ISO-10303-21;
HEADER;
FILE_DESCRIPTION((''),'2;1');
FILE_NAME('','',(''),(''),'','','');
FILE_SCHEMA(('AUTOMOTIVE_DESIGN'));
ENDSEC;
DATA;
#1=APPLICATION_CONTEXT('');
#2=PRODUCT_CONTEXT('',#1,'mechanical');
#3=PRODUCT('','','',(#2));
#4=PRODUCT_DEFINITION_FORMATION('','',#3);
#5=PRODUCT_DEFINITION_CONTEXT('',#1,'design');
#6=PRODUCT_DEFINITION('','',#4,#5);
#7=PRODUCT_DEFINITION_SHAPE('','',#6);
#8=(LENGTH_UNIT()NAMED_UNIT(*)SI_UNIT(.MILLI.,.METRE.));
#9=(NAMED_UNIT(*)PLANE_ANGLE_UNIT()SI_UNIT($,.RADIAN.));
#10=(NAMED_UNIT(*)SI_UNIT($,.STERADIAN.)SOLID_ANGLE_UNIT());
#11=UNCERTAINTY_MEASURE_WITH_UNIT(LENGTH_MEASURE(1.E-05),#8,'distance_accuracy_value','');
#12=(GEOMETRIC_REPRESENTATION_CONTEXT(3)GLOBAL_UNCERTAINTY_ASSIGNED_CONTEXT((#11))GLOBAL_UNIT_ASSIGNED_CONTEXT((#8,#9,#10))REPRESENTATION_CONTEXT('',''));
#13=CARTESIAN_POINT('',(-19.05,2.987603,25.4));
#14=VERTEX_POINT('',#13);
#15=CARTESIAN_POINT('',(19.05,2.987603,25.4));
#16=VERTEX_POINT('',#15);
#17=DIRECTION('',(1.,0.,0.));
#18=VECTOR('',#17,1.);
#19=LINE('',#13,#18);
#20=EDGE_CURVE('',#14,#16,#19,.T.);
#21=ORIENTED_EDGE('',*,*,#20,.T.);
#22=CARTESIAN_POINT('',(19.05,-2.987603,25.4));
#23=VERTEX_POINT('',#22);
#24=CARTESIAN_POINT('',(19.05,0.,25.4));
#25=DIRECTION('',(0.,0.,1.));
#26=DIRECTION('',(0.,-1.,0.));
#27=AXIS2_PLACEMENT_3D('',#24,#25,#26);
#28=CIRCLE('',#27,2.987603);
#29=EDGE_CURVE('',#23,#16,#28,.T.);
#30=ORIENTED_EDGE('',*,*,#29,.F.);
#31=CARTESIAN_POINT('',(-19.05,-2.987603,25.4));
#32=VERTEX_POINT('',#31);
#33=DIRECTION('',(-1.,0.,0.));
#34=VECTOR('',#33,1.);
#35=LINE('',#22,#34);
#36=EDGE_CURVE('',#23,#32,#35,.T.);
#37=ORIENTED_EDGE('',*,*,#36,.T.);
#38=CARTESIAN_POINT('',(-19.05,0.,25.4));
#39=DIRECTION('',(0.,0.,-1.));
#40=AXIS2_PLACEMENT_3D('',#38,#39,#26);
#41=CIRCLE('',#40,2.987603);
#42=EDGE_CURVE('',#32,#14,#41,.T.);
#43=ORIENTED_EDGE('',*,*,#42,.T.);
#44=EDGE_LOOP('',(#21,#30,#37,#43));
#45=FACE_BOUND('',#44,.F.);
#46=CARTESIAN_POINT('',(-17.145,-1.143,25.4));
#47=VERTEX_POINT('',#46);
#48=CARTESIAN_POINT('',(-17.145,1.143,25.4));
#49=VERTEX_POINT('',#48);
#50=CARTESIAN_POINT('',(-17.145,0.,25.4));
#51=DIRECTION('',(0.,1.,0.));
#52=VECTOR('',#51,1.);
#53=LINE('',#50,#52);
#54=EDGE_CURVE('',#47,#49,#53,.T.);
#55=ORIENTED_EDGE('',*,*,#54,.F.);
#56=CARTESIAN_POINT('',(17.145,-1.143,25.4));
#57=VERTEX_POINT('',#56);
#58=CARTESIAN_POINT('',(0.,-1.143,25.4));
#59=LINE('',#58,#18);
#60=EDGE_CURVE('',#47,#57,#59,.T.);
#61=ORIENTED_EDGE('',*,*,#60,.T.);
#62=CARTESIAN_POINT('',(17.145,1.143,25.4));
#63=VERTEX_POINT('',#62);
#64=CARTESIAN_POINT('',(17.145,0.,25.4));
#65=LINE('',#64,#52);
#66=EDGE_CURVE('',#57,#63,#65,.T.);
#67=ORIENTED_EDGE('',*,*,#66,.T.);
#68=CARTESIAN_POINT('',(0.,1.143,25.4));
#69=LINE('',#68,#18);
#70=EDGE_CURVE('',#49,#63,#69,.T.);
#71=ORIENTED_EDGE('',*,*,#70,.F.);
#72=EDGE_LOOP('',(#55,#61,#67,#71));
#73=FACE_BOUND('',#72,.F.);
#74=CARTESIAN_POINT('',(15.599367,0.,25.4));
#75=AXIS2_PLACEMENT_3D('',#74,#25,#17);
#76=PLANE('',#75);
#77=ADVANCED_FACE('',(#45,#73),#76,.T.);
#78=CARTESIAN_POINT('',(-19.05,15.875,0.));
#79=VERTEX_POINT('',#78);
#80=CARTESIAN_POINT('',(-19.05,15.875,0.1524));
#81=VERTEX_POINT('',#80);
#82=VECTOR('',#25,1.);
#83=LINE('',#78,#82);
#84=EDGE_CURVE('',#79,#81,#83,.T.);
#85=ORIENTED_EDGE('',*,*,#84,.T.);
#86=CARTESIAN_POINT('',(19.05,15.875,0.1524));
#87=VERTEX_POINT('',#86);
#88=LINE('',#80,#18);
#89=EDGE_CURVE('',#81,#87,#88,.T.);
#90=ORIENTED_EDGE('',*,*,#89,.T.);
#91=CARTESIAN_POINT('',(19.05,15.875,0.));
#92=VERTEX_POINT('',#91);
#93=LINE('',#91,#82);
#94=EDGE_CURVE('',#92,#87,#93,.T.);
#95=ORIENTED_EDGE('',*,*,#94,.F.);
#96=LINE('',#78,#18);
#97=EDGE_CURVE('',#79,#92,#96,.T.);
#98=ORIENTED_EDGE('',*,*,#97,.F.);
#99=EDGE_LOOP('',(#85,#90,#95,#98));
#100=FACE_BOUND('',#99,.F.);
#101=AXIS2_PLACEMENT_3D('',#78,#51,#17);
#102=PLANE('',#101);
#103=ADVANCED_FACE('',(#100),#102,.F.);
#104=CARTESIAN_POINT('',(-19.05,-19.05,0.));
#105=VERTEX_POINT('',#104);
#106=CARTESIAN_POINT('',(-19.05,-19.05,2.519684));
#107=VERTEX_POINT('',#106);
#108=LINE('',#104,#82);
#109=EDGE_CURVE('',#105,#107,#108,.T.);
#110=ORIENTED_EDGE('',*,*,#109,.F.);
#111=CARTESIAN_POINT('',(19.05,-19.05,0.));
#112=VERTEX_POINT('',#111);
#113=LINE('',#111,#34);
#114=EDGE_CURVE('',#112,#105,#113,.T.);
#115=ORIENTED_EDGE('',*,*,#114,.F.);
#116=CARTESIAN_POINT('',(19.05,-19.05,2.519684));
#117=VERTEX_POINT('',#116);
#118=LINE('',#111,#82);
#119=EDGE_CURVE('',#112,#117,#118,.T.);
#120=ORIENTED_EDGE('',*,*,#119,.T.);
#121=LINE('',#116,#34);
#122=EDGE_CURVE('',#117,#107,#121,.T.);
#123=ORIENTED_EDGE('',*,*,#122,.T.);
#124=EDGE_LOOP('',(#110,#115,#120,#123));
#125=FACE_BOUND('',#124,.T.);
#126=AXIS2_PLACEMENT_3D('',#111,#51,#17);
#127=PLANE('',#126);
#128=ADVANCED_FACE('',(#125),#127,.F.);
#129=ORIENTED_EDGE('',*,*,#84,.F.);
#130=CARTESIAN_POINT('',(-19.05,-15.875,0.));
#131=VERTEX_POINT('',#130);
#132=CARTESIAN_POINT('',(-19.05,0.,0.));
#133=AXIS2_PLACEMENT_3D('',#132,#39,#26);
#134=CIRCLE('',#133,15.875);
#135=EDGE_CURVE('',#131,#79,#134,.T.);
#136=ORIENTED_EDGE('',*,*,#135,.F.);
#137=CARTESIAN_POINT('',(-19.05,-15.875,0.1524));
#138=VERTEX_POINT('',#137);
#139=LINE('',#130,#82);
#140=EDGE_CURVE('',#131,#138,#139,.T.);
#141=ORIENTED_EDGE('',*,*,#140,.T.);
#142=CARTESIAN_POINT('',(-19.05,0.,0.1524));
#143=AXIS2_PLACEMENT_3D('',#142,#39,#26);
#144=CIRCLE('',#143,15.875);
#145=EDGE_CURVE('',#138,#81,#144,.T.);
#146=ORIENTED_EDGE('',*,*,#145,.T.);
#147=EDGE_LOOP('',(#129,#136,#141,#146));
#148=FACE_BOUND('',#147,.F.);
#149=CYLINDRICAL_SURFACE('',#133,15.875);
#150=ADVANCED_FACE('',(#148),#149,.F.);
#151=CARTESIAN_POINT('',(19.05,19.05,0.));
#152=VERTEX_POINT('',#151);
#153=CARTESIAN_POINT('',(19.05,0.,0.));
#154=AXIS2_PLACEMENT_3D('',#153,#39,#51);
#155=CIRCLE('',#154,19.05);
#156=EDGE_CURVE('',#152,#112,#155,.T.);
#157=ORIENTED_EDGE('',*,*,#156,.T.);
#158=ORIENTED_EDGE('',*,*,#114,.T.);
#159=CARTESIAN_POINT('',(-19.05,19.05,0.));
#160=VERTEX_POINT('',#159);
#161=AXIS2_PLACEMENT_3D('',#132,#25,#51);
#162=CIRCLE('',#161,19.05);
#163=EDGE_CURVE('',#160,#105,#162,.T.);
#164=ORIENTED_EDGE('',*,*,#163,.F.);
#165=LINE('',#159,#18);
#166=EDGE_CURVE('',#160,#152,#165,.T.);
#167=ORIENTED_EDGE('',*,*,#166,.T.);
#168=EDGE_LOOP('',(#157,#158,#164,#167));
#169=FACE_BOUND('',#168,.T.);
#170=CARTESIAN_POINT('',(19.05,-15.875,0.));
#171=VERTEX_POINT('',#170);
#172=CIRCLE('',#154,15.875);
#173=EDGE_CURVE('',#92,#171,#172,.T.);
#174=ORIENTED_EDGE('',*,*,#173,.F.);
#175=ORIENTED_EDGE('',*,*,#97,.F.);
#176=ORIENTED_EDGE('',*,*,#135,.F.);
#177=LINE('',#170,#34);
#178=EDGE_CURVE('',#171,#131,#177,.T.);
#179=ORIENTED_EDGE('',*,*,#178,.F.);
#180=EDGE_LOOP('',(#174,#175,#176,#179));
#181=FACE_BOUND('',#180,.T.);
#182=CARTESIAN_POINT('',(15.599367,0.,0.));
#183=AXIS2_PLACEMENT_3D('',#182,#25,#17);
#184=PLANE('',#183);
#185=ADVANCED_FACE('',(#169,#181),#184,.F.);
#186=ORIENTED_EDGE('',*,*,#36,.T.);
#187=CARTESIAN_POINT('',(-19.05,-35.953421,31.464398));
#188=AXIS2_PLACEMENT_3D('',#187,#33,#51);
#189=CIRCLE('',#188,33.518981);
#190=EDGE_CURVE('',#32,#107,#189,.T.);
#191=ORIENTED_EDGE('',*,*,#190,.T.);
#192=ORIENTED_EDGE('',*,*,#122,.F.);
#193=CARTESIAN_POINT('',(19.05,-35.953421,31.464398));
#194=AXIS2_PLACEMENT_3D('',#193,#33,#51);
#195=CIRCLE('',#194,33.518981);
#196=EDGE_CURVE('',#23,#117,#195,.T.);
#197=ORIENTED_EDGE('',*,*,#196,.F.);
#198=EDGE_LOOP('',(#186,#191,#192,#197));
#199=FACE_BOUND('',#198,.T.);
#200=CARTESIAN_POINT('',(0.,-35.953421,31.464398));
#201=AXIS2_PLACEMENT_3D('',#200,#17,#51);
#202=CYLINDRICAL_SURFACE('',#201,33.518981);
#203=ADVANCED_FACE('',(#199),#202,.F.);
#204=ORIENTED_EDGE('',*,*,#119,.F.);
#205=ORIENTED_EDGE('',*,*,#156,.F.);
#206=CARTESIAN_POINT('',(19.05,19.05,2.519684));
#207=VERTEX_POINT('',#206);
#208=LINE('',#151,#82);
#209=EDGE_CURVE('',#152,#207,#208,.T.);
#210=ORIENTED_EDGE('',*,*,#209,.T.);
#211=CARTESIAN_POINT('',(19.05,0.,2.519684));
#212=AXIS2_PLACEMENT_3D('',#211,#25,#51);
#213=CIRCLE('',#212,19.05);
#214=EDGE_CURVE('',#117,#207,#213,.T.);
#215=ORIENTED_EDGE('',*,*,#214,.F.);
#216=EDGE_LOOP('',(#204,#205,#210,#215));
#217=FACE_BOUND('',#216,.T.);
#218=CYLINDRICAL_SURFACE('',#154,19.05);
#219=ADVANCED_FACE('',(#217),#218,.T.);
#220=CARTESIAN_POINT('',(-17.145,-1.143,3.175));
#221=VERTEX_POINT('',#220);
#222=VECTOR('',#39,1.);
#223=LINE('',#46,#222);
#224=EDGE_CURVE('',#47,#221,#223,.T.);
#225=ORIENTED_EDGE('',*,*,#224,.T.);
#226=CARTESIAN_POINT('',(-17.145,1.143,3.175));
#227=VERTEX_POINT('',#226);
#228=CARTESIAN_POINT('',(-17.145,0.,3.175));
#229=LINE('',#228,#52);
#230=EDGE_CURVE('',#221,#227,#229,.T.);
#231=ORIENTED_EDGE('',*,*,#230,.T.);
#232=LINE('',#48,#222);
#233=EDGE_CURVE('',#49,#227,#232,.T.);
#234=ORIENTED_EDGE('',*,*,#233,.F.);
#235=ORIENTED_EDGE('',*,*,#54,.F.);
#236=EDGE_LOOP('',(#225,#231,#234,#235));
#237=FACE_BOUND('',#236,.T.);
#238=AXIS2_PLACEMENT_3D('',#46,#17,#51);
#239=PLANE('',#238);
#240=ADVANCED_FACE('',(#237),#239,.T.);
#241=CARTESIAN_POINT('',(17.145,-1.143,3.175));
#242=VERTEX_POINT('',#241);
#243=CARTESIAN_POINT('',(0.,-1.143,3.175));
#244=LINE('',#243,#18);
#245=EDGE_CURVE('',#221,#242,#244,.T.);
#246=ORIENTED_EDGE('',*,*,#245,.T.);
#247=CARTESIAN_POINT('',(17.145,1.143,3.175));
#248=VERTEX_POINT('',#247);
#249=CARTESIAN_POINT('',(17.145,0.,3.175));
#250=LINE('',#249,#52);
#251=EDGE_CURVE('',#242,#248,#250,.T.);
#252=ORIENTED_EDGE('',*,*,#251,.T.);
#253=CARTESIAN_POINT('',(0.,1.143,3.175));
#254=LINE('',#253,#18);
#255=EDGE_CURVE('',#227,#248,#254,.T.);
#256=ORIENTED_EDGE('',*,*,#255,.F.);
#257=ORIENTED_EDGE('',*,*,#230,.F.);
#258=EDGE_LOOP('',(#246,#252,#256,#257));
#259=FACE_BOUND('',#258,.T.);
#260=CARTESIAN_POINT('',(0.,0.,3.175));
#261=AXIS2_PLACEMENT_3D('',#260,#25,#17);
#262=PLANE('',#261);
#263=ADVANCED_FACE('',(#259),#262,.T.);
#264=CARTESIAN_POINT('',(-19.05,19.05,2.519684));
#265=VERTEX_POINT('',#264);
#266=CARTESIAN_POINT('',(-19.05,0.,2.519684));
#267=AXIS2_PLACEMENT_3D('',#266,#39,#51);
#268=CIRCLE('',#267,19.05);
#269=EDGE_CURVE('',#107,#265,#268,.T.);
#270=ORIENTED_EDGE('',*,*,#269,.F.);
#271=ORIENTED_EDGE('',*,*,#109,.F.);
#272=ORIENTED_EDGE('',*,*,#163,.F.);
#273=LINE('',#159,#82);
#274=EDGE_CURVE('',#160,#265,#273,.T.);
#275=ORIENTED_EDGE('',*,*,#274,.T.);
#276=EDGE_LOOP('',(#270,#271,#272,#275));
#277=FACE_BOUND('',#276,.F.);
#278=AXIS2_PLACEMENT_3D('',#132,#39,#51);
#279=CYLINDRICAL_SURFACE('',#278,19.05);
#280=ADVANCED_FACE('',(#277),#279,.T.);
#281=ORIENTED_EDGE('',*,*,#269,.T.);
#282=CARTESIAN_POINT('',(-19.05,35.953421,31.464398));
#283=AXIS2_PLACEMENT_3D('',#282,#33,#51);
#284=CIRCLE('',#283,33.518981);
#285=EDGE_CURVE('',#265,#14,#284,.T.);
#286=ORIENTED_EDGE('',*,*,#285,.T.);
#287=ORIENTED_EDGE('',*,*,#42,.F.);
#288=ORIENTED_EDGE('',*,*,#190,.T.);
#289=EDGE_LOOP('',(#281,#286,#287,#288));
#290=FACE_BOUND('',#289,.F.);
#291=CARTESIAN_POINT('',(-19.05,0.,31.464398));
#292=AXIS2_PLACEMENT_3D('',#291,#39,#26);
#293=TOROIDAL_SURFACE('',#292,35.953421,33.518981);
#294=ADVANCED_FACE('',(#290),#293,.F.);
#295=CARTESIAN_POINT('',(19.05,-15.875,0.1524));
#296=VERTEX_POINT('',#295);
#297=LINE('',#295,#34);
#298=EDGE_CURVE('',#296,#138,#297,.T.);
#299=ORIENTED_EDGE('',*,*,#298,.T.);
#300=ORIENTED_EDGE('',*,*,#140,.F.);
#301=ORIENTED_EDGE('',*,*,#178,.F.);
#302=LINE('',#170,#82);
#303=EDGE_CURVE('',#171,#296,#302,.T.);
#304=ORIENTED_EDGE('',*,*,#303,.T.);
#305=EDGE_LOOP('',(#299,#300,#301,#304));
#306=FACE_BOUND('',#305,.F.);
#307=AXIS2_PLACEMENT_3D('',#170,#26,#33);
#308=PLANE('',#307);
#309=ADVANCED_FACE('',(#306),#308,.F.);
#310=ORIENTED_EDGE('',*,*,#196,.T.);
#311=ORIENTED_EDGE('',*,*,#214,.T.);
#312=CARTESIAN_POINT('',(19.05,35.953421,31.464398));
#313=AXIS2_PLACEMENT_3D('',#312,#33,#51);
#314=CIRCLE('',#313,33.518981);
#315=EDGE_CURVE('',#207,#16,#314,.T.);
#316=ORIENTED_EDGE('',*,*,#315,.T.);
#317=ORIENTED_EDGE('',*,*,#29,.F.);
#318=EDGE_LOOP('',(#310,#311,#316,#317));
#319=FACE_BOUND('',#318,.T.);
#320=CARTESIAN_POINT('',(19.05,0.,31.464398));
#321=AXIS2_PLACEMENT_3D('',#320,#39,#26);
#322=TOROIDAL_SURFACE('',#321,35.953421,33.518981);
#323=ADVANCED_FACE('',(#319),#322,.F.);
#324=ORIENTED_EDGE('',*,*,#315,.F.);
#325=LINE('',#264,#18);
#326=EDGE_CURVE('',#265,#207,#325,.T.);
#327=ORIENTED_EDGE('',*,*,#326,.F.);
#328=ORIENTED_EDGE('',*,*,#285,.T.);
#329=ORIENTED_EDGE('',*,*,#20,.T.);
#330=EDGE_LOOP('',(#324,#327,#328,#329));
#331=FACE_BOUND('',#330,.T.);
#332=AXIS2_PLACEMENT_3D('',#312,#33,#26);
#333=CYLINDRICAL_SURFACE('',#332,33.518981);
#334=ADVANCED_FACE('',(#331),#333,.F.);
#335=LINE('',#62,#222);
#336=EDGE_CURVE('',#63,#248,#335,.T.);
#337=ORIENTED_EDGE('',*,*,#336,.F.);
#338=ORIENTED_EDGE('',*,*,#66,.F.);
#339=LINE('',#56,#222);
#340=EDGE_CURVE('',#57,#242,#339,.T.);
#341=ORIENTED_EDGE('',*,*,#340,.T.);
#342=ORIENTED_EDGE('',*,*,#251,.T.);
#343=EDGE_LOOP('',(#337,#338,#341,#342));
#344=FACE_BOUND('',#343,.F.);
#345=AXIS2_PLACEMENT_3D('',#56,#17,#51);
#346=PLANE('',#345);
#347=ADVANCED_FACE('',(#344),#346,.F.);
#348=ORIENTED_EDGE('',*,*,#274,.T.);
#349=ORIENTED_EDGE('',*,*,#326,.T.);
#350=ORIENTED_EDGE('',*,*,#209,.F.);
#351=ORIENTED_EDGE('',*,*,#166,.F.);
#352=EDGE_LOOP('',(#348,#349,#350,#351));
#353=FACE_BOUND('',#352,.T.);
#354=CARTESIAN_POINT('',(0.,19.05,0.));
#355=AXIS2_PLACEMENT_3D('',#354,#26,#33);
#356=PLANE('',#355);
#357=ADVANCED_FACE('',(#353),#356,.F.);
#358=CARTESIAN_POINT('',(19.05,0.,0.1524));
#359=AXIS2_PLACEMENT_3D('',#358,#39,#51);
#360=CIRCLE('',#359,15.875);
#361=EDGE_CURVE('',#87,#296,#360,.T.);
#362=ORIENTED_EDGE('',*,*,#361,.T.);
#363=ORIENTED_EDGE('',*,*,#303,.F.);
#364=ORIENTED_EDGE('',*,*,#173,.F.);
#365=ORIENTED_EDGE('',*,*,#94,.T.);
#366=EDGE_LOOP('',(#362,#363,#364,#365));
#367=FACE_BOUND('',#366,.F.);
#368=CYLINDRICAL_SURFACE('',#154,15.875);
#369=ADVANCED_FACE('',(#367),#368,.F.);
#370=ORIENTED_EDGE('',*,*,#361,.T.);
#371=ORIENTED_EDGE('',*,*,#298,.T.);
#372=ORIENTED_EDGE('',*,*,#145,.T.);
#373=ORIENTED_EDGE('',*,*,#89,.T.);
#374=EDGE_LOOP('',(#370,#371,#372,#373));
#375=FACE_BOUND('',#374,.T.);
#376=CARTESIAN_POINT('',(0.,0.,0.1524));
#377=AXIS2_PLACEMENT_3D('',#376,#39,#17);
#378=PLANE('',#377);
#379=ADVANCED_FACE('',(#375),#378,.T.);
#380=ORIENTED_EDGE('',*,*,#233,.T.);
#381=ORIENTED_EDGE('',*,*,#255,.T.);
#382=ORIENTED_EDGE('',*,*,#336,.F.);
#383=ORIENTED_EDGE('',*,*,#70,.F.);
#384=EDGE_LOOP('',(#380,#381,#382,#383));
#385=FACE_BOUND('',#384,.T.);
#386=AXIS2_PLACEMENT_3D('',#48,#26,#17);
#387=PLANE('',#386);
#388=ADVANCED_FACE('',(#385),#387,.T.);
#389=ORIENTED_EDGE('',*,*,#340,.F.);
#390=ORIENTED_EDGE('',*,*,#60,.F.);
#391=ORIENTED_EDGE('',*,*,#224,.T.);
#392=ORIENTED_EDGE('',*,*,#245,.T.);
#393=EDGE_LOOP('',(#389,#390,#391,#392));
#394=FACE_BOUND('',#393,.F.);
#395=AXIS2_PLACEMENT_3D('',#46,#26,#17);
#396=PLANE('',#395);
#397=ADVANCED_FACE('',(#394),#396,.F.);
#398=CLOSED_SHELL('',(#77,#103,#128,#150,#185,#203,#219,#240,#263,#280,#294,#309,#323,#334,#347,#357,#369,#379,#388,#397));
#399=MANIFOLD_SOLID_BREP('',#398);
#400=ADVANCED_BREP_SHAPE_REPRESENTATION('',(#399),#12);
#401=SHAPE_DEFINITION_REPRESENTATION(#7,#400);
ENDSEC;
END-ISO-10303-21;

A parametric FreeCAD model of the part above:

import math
import FreeCAD as App
import Part
import Sketcher
from FreeCAD import Vector
Q = App.Units.Quantity

doc = App.newDocument("Part")
body = doc.addObject("PartDesign::Body", "Body")

# Sketch on XY plane
sketch1 = body.newObject("Sketcher::SketchObject", "Sketch")
sketch1.AttachmentSupport = (doc.getObject("XY_Plane"), [""])
sketch1.MapMode = "FlatFace"
sketch1.addGeometry([
    Part.LineSegment(Vector(0, -19, 0), Vector(0, 19, 0)),
    Part.LineSegment(Vector(0, 19, 0), Vector(-19, 19, 0)),
    Part.ArcOfCircle(Part.Circle(Vector(-19, 0, 0), Vector(0, 0, 1), 19), math.radians(90), math.radians(270)),
    Part.LineSegment(Vector(-19, -19, 0), Vector(0, -19, 0)),
], False)
sketch1.addConstraint([
    Sketcher.Constraint("Coincident", 0, 2, 1, 1),
    Sketcher.Constraint("Tangent", 1, 2, 2, 1),
    Sketcher.Constraint("Tangent", 2, 2, 3, 1),
    Sketcher.Constraint("Coincident", 3, 2, 0, 1),
    Sketcher.Constraint("Vertical", 0),
    Sketcher.Constraint("Horizontal", 1),
    Sketcher.Constraint("Horizontal", 3),
    Sketcher.Constraint("Symmetric", 0, 2, 3, 2, -1, 1),
    Sketcher.Constraint("Radius", 2, Q("0.75 in")),
    Sketcher.Constraint("DistanceX", 1, 2, 1, 1, Q("0.75 in")),
])
pad1 = body.newObject("PartDesign::Pad", "Pad")
pad1.Profile = sketch1
pad1.Length = Q("1 in")

# Sketch on YZ plane
sketch2 = body.newObject("Sketcher::SketchObject", "Sketch001")
sketch2.AttachmentSupport = (doc.getObject("YZ_Plane"), [""])
sketch2.MapMode = "FlatFace"
sketch2.addGeometry(Part.Circle(Vector(-36, 31, 0), Vector(0, 0, 1), 34), False)
sketch2.addConstraint([
    Sketcher.Constraint("Diameter", 0, Q("67.037962 mm")),
    Sketcher.Constraint("DistanceX", 0, 3, -1, 1, Q("35.953421 mm")),
    Sketcher.Constraint("DistanceY", -1, 1, 0, 3, Q("31.464398 mm")),
])

# Sketch on XY plane
sketch3 = body.newObject("Sketcher::SketchObject", "Sketch002")
sketch3.AttachmentSupport = (doc.getObject("XY_Plane"), [""])
sketch3.MapMode = "FlatFace"
sketch3.AttachmentOffset = App.Placement(Vector(0, 0, 1 * 25.4), App.Rotation())
sketch3.addGeometry([
    Part.LineSegment(Vector(0, -19, 0), Vector(-19, -19, 0)),
    Part.ArcOfCircle(Part.Circle(Vector(-19, 0, 0), Vector(0, 0, 1), 19), math.radians(90), math.radians(270)),
    Part.LineSegment(Vector(-19, 19, 0), Vector(0, 19, 0)),
], False)
sketch3.addConstraint([
    Sketcher.Constraint("Tangent", 0, 2, 1, 2),
    Sketcher.Constraint("Tangent", 1, 1, 2, 1),
    Sketcher.Constraint("Horizontal", 0),
    Sketcher.Constraint("Horizontal", 2),
    Sketcher.Constraint("Symmetric", 0, 1, 2, 2, -1, 1),
    Sketcher.Constraint("PointOnObject", 0, 1, -2),
    Sketcher.Constraint("Radius", 1, Q("0.75 in")),
    Sketcher.Constraint("DistanceX", 0, 2, 0, 1, Q("0.75 in")),
])
doc.recompute()

subtractivepipe = body.newObject("PartDesign::SubtractivePipe", "SubtractivePipe")
subtractivepipe.Profile = sketch2
subtractivepipe.Spine = (sketch3, ["Edge1", "Edge2", "Edge3"])
body2 = doc.addObject("PartDesign::Body", "Body001")
doc.recompute()

body2.BaseFeature = body
doc.recompute()

mirroring = doc.addObject("Part::Mirroring", "Mirroring")
mirroring.Source = body
mirroring.Base = Vector(0, 0, 8.7269)
mirroring.Normal = Vector(1, 0, 0)
body3 = doc.addObject("PartDesign::Body", "Body002")
body3.BaseFeature = mirroring
boolean = body2.newObject("PartDesign::Boolean", "Boolean")
boolean.Type = "Fuse"
boolean.addObjects([body3])
doc.recompute()

# Sketch on XY plane
sketch4 = body2.newObject("Sketcher::SketchObject", "Sketch003")
sketch4.AttachmentSupport = (doc.getObject("XY_Plane001"), [""])
sketch4.MapMode = "FlatFace"
sketch4.AttachmentOffset = App.Placement(Vector(0, 0, 1 * 25.4), App.Rotation())
sketch4.addGeometry([
    Part.LineSegment(Vector(-17.1, 1.1, 0), Vector(-17.1, -1.1, 0)),
    Part.LineSegment(Vector(-17.1, -1.1, 0), Vector(17.1, -1.1, 0)),
    Part.LineSegment(Vector(17.1, -1.1, 0), Vector(17.1, 1.1, 0)),
    Part.LineSegment(Vector(17.1, 1.1, 0), Vector(-17.1, 1.1, 0)),
], False)
sketch4.addConstraint([
    Sketcher.Constraint("Coincident", 0, 2, 1, 1),
    Sketcher.Constraint("Coincident", 1, 2, 2, 1),
    Sketcher.Constraint("Coincident", 2, 2, 3, 1),
    Sketcher.Constraint("Coincident", 3, 2, 0, 1),
    Sketcher.Constraint("Vertical", 0),
    Sketcher.Constraint("Horizontal", 1),
    Sketcher.Constraint("Vertical", 2),
    Sketcher.Constraint("Horizontal", 3),
    Sketcher.Constraint("Symmetric", 0, 2, 2, 2, -1, 1),
    Sketcher.Constraint("DistanceX", 1, 1, 1, 2, Q("1.35 in")),
    Sketcher.Constraint("DistanceY", 0, 2, 0, 1, Q("0.09 in")),
])
pocket1 = body2.newObject("PartDesign::Pocket", "Pocket")
pocket1.Profile = sketch4
pocket1.Length = Q("0.875 in")

# Sketch on XY plane
sketch5 = body2.newObject("Sketcher::SketchObject", "Sketch004")
sketch5.AttachmentSupport = (doc.getObject("XY_Plane001"), [""])
sketch5.MapMode = "FlatFace"
sketch5.addGeometry([
    Part.ArcOfCircle(Part.Circle(Vector(19, 0, 0), Vector(0, 0, 1), 16), math.radians(-90), math.radians(90)),
    Part.LineSegment(Vector(19, -16, 0), Vector(-19, -16, 0)),
    Part.ArcOfCircle(Part.Circle(Vector(-19, 0, 0), Vector(0, 0, 1), 16), math.radians(90), math.radians(270)),
    Part.LineSegment(Vector(-19, 16, 0), Vector(19, 16, 0)),
], False)
sketch5.addConstraint([
    Sketcher.Constraint("Tangent", 0, 1, 1, 1),
    Sketcher.Constraint("Tangent", 1, 2, 2, 2),
    Sketcher.Constraint("Tangent", 2, 1, 3, 1),
    Sketcher.Constraint("Tangent", 3, 2, 0, 2),
    Sketcher.Constraint("Horizontal", 1),
    Sketcher.Constraint("Horizontal", 3),
    Sketcher.Constraint("Symmetric", 0, 3, 2, 3, -1, 1),
    Sketcher.Constraint("DistanceX", 1, 2, 1, 1, Q("1.5 in")),
    Sketcher.Constraint("Radius", 0, Q("0.625 in")),
])
pocket2 = body2.newObject("PartDesign::Pocket", "Pocket001")
pocket2.Profile = sketch5
pocket2.Length = Q("0.006 in")
pocket2.Reversed = True
mirroring.Visibility = False

doc.recompute()
